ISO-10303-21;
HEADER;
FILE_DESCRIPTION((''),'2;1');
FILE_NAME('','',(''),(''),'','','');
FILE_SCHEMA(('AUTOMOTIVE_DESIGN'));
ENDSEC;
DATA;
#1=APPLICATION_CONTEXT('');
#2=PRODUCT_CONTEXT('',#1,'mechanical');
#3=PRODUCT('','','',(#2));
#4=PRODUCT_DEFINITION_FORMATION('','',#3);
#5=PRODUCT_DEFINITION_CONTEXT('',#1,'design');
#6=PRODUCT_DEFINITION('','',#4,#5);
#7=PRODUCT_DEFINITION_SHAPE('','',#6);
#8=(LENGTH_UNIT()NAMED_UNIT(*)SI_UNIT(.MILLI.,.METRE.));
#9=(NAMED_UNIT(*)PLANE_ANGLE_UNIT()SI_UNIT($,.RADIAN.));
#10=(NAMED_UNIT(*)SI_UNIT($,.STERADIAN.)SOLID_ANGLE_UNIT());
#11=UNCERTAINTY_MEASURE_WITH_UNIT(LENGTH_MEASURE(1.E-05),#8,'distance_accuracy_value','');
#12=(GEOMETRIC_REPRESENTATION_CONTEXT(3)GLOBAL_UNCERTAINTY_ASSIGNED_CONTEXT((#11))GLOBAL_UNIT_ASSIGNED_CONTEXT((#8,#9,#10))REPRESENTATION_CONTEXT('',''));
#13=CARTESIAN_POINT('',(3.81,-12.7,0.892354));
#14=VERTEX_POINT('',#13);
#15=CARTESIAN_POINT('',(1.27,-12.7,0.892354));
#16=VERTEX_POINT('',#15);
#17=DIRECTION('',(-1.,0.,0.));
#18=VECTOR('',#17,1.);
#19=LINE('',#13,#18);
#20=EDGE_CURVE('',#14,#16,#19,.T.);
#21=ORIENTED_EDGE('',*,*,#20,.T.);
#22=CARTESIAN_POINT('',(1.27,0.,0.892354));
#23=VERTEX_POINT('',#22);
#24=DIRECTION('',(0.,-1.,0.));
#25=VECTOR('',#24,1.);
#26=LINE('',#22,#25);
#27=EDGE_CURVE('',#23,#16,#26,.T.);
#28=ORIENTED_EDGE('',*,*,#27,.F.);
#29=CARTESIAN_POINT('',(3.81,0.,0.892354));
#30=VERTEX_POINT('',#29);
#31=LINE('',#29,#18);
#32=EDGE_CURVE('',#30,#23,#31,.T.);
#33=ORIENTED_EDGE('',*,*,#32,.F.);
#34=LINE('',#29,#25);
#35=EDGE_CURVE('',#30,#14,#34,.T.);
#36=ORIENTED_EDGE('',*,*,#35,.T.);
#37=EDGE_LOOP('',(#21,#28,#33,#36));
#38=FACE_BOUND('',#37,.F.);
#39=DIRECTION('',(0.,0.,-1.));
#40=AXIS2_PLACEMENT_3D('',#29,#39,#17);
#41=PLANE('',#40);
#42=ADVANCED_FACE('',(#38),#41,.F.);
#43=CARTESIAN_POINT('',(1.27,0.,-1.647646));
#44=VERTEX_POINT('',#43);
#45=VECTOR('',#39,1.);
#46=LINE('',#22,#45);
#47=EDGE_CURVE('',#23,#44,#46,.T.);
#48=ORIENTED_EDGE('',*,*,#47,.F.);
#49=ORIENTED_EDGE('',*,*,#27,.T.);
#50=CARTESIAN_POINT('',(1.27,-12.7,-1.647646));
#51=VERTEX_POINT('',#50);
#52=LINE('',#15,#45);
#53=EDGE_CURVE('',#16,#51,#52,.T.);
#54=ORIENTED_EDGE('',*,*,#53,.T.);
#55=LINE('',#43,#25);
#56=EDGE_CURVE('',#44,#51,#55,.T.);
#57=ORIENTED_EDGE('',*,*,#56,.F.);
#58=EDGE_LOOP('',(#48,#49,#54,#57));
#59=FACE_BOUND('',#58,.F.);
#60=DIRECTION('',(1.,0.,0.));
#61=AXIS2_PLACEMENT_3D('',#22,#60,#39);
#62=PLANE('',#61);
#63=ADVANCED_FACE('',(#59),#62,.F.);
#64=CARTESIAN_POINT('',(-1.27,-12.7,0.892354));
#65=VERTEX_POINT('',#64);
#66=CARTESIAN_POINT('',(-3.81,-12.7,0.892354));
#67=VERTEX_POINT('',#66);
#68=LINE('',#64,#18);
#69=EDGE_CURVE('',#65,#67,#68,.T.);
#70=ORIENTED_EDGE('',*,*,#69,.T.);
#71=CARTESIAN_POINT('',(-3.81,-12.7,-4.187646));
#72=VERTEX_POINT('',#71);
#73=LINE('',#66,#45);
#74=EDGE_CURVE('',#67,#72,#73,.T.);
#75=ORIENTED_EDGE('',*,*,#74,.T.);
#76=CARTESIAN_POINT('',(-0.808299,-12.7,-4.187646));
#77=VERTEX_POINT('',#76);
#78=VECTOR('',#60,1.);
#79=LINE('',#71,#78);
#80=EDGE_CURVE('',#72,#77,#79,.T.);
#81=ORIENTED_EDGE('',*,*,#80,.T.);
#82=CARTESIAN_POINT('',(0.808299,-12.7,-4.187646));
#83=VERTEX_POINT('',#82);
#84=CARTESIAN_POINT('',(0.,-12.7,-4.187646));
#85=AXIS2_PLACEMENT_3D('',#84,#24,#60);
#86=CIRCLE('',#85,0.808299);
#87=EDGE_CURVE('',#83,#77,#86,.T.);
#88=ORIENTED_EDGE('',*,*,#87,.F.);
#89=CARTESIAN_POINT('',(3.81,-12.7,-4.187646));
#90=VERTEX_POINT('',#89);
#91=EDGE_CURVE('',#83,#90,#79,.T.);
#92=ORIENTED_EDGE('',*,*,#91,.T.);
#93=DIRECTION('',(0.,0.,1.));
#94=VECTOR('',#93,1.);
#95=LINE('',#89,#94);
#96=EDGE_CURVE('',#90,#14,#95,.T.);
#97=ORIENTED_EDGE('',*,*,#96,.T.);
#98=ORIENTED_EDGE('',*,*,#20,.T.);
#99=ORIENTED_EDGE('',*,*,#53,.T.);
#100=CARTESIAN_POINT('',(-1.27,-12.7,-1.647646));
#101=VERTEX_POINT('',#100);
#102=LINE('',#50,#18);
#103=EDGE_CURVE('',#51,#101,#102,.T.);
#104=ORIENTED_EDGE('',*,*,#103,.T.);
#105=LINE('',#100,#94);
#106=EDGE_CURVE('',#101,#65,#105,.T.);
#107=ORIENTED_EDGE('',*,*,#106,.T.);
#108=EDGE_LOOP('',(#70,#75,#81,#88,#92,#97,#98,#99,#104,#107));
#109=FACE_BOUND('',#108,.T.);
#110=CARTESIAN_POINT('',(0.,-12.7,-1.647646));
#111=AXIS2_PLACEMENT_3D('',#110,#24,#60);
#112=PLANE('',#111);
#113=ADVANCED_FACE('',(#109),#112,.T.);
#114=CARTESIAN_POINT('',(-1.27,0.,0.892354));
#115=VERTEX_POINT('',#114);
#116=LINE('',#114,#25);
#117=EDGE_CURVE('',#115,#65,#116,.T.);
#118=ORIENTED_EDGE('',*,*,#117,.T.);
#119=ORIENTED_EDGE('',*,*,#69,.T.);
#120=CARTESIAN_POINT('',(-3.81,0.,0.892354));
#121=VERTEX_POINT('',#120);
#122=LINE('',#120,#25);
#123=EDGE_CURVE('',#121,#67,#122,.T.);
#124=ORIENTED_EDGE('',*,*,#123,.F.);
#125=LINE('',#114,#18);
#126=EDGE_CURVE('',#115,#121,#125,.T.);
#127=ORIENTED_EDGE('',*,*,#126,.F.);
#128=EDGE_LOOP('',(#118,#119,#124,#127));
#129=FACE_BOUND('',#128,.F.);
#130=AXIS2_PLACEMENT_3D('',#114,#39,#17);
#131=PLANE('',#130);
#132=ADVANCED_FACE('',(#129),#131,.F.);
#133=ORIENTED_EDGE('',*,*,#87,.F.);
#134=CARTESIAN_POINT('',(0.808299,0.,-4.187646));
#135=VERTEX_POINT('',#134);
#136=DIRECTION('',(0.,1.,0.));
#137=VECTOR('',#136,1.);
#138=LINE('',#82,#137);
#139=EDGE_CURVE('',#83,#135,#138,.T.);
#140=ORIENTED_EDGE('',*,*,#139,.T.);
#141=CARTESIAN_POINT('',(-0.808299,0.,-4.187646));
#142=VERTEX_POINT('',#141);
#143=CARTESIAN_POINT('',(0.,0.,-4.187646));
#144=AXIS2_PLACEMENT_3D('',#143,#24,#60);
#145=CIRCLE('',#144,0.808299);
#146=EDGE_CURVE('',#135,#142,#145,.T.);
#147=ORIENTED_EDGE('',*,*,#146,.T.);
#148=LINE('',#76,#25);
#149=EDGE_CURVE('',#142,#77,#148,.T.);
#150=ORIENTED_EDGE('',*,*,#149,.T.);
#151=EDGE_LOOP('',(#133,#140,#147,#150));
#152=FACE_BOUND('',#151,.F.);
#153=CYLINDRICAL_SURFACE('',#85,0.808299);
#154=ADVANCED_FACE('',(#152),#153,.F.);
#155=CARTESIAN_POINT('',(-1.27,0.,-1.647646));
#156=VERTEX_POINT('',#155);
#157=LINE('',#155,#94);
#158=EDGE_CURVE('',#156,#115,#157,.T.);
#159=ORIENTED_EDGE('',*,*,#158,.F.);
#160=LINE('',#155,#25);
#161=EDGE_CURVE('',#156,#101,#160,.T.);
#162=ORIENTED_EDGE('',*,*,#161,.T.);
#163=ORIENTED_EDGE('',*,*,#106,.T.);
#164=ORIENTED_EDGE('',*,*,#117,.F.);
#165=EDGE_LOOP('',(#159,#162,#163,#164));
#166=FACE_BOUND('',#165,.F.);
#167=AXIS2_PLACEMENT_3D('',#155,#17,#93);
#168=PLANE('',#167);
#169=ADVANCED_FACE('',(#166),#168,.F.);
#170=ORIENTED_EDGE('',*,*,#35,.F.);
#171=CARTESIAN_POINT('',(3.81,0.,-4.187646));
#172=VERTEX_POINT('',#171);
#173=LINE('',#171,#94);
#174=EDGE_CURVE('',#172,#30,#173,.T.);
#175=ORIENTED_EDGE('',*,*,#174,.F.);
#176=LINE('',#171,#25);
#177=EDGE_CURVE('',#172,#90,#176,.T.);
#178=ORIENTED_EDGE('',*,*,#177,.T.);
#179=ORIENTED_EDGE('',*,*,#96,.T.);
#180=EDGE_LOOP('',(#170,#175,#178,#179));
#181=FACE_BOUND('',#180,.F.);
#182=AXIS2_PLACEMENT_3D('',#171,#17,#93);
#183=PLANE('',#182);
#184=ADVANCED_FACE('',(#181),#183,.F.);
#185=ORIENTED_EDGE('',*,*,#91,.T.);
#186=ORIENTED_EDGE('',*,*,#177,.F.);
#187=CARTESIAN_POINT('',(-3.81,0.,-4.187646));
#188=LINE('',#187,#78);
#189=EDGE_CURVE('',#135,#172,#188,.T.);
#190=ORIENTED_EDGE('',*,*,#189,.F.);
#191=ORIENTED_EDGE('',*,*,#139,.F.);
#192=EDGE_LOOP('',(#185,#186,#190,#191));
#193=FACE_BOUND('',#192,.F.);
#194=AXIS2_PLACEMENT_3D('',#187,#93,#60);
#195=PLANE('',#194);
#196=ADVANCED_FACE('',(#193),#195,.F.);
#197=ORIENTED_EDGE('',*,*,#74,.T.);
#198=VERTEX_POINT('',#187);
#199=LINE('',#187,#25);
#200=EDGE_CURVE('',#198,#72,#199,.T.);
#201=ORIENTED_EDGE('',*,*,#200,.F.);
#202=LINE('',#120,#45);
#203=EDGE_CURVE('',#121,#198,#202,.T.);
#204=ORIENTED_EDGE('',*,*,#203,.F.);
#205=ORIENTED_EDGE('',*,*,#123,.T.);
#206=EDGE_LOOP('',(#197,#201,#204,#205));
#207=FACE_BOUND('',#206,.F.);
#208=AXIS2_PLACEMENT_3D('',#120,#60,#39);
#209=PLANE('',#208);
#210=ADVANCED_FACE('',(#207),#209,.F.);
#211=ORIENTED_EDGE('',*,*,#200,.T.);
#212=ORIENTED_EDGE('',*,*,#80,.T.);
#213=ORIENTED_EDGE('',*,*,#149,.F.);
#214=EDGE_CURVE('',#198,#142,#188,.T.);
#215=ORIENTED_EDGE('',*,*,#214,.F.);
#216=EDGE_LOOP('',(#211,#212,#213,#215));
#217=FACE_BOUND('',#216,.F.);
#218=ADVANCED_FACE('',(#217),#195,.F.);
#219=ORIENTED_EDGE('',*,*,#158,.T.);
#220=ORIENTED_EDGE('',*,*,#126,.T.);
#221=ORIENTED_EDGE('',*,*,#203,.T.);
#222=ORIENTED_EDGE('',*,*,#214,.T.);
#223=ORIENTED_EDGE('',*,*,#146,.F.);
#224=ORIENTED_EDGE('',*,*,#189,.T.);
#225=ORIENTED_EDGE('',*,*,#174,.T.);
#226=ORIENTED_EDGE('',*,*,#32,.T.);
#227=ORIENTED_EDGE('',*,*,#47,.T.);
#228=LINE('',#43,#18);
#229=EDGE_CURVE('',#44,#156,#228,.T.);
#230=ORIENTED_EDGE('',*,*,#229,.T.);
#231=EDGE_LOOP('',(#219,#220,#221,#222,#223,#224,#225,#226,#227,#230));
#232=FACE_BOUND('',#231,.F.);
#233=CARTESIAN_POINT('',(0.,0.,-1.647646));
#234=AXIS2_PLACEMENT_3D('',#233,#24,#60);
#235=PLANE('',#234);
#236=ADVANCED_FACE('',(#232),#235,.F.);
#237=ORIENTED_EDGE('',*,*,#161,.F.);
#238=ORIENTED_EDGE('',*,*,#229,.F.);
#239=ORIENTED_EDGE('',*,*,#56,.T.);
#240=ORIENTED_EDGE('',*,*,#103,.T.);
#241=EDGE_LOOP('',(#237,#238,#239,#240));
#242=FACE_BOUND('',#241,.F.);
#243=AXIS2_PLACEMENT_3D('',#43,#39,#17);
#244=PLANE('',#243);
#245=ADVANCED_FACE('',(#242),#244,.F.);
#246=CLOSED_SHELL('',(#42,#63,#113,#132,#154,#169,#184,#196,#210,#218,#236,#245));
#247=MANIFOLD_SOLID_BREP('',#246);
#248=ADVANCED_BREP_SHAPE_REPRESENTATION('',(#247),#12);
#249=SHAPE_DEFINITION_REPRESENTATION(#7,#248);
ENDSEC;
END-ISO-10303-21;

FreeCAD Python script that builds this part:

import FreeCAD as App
import Part
import Sketcher
Q = App.Units.Quantity

doc = App.newDocument("Part")
body = doc.addObject("PartDesign::Body", "Body")

# Sketch on XZ plane
sketch1 = body.newObject("Sketcher::SketchObject", "Sketch")
sketch1.AttachmentSupport = (doc.getObject("XZ_Plane"), [""])
sketch1.MapMode = "FlatFace"
sketch1.addGeometry(Part.LineSegment(App.Vector(-1.3, 0.9, 0), App.Vector(-3.8, 0.9, 0)), False)
sketch1.addGeometry(Part.LineSegment(App.Vector(-3.8, 0.9, 0), App.Vector(-3.8, -4.2, 0)), False)
sketch1.addGeometry(Part.LineSegment(App.Vector(-3.8, -4.2, 0), App.Vector(3.8, -4.2, 0)), False)
sketch1.addGeometry(Part.LineSegment(App.Vector(3.8, -4.2, 0), App.Vector(3.8, 0.9, 0)), False)
sketch1.addGeometry(Part.LineSegment(App.Vector(3.8, 0.9, 0), App.Vector(1.3, 0.9, 0)), False)
sketch1.addGeometry(Part.LineSegment(App.Vector(1.3, 0.9, 0), App.Vector(1.3, -1.6, 0)), False)
sketch1.addGeometry(Part.LineSegment(App.Vector(1.3, -1.6, 0), App.Vector(-1.3, -1.6, 0)), False)
sketch1.addGeometry(Part.LineSegment(App.Vector(-1.3, -1.6, 0), App.Vector(-1.3, 0.9, 0)), False)
sketch1.addConstraint(Sketcher.Constraint("Coincident", 0, 2, 1, 1))
sketch1.addConstraint(Sketcher.Constraint("Coincident", 1, 2, 2, 1))
sketch1.addConstraint(Sketcher.Constraint("Coincident", 2, 2, 3, 1))
sketch1.addConstraint(Sketcher.Constraint("Coincident", 3, 2, 4, 1))
sketch1.addConstraint(Sketcher.Constraint("Coincident", 4, 2, 5, 1))
sketch1.addConstraint(Sketcher.Constraint("Coincident", 5, 2, 6, 1))
sketch1.addConstraint(Sketcher.Constraint("Coincident", 6, 2, 7, 1))
sketch1.addConstraint(Sketcher.Constraint("Coincident", 7, 2, 0, 1))
sketch1.addConstraint(Sketcher.Constraint("Horizontal", 0))
sketch1.addConstraint(Sketcher.Constraint("Vertical", 1))
sketch1.addConstraint(Sketcher.Constraint("Horizontal", 2))
sketch1.addConstraint(Sketcher.Constraint("Vertical", 3))
sketch1.addConstraint(Sketcher.Constraint("Horizontal", 4))
sketch1.addConstraint(Sketcher.Constraint("Vertical", 5))
sketch1.addConstraint(Sketcher.Constraint("Horizontal", 6))
sketch1.addConstraint(Sketcher.Constraint("Vertical", 7))
sketch1.addConstraint(Sketcher.Constraint("Symmetric", 0, 2, 3, 2, -2))
sketch1.addConstraint(Sketcher.Constraint("Equal", 0, 4))
sketch1.addConstraint(Sketcher.Constraint("Equal", 4, 6))
sketch1.addConstraint(Sketcher.Constraint("Equal", 6, 5))
sketch1.addConstraint(Sketcher.Constraint("DistanceX", 0, 2, 0, 1, Q("0.1 in")))
sketch1.addConstraint(Sketcher.Constraint("DistanceY", 1, 2, 1, 1, Q("0.2 in")))
sketch1.addConstraint(Sketcher.Constraint("DistanceY", -1, 1, 0, 2, Q("0.892354 mm")))
pad1 = body.newObject("PartDesign::Pad", "Pad")
pad1.Profile = sketch1
pad1.Length = Q("0.5 in")

# Sketch on XZ plane
sketch2 = body.newObject("Sketcher::SketchObject", "Sketch001")
sketch2.AttachmentSupport = (doc.getObject("XZ_Plane"), [""])
sketch2.MapMode = "FlatFace"
sketch2.AttachmentOffset = App.Placement(App.Vector(0, 0, 0.5 * 25.4), App.Rotation())
sketch2.addGeometry(Part.Circle(App.Vector(0, -4.2, 0), App.Vector(0, 0, 1), 0.8), False)
sketch2.addConstraint(Sketcher.Constraint("PointOnObject", 0, 3, -2))
sketch2.addConstraint(Sketcher.Constraint("Diameter", 0, Q("1.616598 mm")))
sketch2.addConstraint(Sketcher.Constraint("DistanceY", 0, 3, -1, 1, Q("4.187646 mm")))
pocket1 = body.newObject("PartDesign::Pocket", "Pocket")
pocket1.Profile = sketch2
pocket1.Length = Q("1 in")

doc.recompute()
